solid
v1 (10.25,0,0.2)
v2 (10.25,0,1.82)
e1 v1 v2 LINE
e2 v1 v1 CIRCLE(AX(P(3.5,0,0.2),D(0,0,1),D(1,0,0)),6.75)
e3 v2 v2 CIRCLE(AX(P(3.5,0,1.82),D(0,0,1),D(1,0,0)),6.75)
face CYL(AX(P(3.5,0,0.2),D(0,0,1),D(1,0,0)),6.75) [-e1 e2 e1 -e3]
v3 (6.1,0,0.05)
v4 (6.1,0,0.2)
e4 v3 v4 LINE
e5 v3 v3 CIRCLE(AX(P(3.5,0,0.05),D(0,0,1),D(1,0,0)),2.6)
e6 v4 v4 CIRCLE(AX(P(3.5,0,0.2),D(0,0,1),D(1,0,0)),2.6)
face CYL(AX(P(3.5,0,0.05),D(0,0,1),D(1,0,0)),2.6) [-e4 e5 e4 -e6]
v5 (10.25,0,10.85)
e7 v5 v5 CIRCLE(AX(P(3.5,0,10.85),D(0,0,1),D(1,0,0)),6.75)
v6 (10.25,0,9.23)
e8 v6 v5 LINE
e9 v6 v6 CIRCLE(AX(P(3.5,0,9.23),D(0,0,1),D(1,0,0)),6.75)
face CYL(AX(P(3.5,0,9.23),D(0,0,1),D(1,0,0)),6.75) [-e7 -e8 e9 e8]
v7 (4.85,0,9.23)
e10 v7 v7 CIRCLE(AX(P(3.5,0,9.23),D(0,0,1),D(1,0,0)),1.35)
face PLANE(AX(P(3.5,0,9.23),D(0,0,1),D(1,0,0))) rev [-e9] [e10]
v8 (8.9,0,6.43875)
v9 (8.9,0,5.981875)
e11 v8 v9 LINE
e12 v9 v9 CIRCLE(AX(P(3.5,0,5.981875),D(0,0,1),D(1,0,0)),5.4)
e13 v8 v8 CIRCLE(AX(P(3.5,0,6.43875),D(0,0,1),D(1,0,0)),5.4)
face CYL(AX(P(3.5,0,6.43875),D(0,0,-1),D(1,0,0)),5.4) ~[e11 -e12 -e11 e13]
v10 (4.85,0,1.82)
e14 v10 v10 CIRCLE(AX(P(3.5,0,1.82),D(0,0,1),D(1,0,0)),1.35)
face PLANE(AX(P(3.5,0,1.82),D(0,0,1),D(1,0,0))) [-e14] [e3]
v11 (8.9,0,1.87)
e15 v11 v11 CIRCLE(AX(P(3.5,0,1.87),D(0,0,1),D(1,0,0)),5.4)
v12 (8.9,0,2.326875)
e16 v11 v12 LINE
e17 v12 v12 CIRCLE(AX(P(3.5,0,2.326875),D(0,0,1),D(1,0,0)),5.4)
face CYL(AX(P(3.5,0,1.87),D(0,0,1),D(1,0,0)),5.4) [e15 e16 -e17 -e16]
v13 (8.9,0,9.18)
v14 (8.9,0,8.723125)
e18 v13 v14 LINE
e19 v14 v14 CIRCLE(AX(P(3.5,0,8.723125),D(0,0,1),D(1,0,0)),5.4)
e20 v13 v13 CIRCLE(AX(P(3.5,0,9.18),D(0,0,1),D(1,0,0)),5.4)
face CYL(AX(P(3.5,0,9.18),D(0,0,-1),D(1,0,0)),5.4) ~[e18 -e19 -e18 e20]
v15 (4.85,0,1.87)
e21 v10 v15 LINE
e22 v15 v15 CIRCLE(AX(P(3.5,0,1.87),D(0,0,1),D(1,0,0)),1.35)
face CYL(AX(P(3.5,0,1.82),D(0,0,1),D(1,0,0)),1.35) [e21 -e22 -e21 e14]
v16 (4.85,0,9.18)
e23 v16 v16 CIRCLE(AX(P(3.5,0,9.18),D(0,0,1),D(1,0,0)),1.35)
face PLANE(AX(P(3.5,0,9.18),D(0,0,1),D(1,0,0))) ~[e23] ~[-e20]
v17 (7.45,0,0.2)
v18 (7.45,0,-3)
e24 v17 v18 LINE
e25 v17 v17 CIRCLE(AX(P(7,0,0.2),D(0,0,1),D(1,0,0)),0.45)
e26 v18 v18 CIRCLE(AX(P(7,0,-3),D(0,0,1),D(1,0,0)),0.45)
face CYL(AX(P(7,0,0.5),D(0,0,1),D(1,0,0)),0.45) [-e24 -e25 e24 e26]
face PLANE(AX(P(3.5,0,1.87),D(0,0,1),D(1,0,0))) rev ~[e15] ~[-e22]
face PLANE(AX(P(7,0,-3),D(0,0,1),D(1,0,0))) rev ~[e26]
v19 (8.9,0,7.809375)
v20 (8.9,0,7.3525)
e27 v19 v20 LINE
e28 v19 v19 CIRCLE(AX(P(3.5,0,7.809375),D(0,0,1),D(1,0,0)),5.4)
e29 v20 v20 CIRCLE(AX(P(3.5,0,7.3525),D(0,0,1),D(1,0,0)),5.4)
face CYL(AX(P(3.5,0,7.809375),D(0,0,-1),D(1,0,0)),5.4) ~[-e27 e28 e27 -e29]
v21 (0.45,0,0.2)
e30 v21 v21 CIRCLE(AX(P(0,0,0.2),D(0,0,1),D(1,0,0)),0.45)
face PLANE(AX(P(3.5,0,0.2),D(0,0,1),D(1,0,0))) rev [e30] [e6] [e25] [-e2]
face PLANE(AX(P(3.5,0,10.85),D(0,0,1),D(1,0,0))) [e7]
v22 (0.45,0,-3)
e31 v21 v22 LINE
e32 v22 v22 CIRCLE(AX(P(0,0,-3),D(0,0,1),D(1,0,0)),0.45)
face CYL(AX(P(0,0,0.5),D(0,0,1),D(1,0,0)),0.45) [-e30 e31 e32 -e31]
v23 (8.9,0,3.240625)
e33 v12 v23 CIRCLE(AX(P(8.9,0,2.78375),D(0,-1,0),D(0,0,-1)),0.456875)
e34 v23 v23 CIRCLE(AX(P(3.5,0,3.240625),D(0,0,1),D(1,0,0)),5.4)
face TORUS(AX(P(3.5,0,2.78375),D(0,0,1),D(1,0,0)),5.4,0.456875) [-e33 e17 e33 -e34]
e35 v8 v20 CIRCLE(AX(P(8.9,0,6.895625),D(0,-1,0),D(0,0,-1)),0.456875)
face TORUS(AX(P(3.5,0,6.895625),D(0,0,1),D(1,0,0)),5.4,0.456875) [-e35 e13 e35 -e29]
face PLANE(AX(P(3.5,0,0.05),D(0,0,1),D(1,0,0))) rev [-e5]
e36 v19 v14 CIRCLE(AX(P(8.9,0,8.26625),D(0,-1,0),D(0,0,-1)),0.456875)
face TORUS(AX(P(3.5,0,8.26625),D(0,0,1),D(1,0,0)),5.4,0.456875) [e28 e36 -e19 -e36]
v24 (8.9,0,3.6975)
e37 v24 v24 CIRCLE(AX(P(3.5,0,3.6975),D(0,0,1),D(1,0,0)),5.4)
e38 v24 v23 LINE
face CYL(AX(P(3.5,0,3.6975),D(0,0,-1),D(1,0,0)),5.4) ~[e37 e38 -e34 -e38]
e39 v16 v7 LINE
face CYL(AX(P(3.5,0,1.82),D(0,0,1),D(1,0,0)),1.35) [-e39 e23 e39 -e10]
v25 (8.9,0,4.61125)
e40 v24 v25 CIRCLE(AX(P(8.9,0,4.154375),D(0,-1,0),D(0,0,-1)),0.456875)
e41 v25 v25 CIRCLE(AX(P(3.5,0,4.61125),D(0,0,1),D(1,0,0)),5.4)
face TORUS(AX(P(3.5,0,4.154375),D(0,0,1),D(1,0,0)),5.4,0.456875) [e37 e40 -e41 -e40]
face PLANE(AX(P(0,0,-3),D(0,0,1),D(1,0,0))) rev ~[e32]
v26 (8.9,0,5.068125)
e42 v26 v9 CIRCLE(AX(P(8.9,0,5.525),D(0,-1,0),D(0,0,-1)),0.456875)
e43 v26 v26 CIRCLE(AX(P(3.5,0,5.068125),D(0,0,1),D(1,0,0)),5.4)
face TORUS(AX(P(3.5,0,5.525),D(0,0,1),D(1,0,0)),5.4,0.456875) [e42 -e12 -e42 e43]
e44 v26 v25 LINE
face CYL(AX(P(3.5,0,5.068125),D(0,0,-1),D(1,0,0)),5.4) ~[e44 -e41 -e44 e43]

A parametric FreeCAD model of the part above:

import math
import FreeCAD as App
import Part
import Sketcher
from FreeCAD import Vector

doc = App.newDocument("Part")
body = doc.addObject("PartDesign::Body", "Body")

sketch1 = body.newObject("Sketcher::SketchObject", "Sketch")
sketch1.AttachmentSupport = (doc.getObject("XZ_Plane"), [""])
sketch1.MapMode = "FlatFace"
sketch1.addGeometry(Part.LineSegment(Vector(3.5, 0.05, 0), Vector(6.1, 0.05, 0)), False)
sketch1.addGeometry(Part.LineSegment(Vector(6.1, 0.05, 0), Vector(6.1, 0.2, 0)), False)
sketch1.addGeometry(Part.LineSegment(Vector(6.1, 0.2, 0), Vector(10.25, 0.2, 0)), False)
sketch1.addGeometry(Part.LineSegment(Vector(10.25, 0.2, 0), Vector(10.25, 1.82, 0)), False)
sketch1.addGeometry(Part.LineSegment(Vector(10.25, 1.82, 0), Vector(4.85, 1.82, 0)), False)
sketch1.addGeometry(Part.LineSegment(Vector(4.85, 1.82, 0), Vector(4.85, 9.23, 0)), False)
sketch1.addGeometry(Part.LineSegment(Vector(4.85, 9.23, 0), Vector(10.25, 9.23, 0)), False)
sketch1.addGeometry(Part.LineSegment(Vector(10.25, 9.23, 0), Vector(10.25, 10.85, 0)), False)
sketch1.addGeometry(Part.LineSegment(Vector(10.25, 10.85, 0), Vector(3.5, 10.85, 0)), False)
sketch1.addGeometry(Part.LineSegment(Vector(3.5, 10.85, 0), Vector(3.5, 0.05, 0)), False)
sketch1.addGeometry(Part.LineSegment(Vector(3.5, 0.05, 0), Vector(3.5, 10.85, 0)), True)
sketch1.addConstraint(Sketcher.Constraint("Coincident", 0, 2, 1, 1))
sketch1.addConstraint(Sketcher.Constraint("Coincident", 1, 2, 2, 1))
sketch1.addConstraint(Sketcher.Constraint("Coincident", 2, 2, 3, 1))
sketch1.addConstraint(Sketcher.Constraint("Coincident", 3, 2, 4, 1))
sketch1.addConstraint(Sketcher.Constraint("Coincident", 4, 2, 5, 1))
sketch1.addConstraint(Sketcher.Constraint("Coincident", 5, 2, 6, 1))
sketch1.addConstraint(Sketcher.Constraint("Coincident", 6, 2, 7, 1))
sketch1.addConstraint(Sketcher.Constraint("Coincident", 7, 2, 8, 1))
sketch1.addConstraint(Sketcher.Constraint("Coincident", 8, 2, 9, 1))
sketch1.addConstraint(Sketcher.Constraint("Coincident", 9, 2, 0, 1))
sketch1.addConstraint(Sketcher.Constraint("Horizontal", 0))
sketch1.addConstraint(Sketcher.Constraint("Vertical", 1))
sketch1.addConstraint(Sketcher.Constraint("Horizontal", 2))
sketch1.addConstraint(Sketcher.Constraint("Vertical", 3))
sketch1.addConstraint(Sketcher.Constraint("Horizontal", 4))
sketch1.addConstraint(Sketcher.Constraint("Vertical", 5))
sketch1.addConstraint(Sketcher.Constraint("Horizontal", 6))
sketch1.addConstraint(Sketcher.Constraint("Vertical", 7))
sketch1.addConstraint(Sketcher.Constraint("Horizontal", 8))
sketch1.addConstraint(Sketcher.Constraint("Vertical", 9))
sketch1.addConstraint(Sketcher.Constraint("Vertical", 10))
sketch1.addConstraint(Sketcher.Constraint("Coincident", 10, 1, 9, 2))
sketch1.addConstraint(Sketcher.Constraint("Horizontal", 7, 2, 10, 2))
sketch1.addConstraint(Sketcher.Constraint("Vertical", 3, 2, 6, 2))
sketch1.addConstraint(Sketcher.Constraint("Equal", 3, 7))
sketch1.addConstraint(Sketcher.Constraint("DistanceX", 0, 1, 0, 2, 2.6))
sketch1.addConstraint(Sketcher.Constraint("DistanceX", 4, 2, 4, 1, 5.4))
sketch1.addConstraint(Sketcher.Constraint("DistanceY", 9, 2, 9, 1, 10.8))
sketch1.addConstraint(Sketcher.Constraint("DistanceX", 2, 1, 2, 2, 4.15))
sketch1.addConstraint(Sketcher.Constraint("DistanceY", 1, 1, 1, 2, 0.15))
sketch1.addConstraint(Sketcher.Constraint("DistanceY", 3, 1, 3, 2, 1.62))
sketch1.addConstraint(Sketcher.Constraint("DistanceX", -1, 1, 0, 2, 6.1))
sketch1.addConstraint(Sketcher.Constraint("DistanceY", -1, 1, 1, 2, 0.2))
revolution = body.newObject("PartDesign::Revolution", "Revolution")
revolution.Profile = sketch1
revolution.ReferenceAxis = (sketch1, ["Axis0"])
revolution.Angle = 360
body2 = doc.addObject("PartDesign::Body", "Body001")
body2.AllowCompound = True

sketch2 = body2.newObject("Sketcher::SketchObject", "Sketch001")
sketch2.AttachmentSupport = (doc.getObject("XY_Plane001"), [""])
sketch2.MapMode = "FlatFace"
sketch2.AttachmentOffset = App.Placement(Vector(0, 0, 0.5), App.Rotation())
sketch2.addGeometry(Part.Circle(Vector(0, 0, 0), Vector(0, 0, 1), 0.45), False)
sketch2.addGeometry(Part.Circle(Vector(7, 0, 0), Vector(0, 0, 1), 0.45), False)
sketch2.addConstraint(Sketcher.Constraint("Coincident", 0, 3, -1, 1))
sketch2.addConstraint(Sketcher.Constraint("Equal", 0, 1))
sketch2.addConstraint(Sketcher.Constraint("PointOnObject", 1, 3, -1))
sketch2.addConstraint(Sketcher.Constraint("Diameter", 0, 0.9))
sketch2.addConstraint(Sketcher.Constraint("DistanceX", -1, 1, 1, 3, 7.0))
pad1 = body2.newObject("PartDesign::Pad", "Pad")
pad1.Profile = sketch2
pad1.Length = 3.5
pad1.Reversed = True
body3 = doc.addObject("PartDesign::Body", "Body002")

sketch3 = body3.newObject("Sketcher::SketchObject", "Sketch002")
sketch3.AttachmentSupport = (doc.getObject("XZ_Plane002"), [""])
sketch3.MapMode = "FlatFace"
sketch3.addGeometry(Part.LineSegment(Vector(4.85, 1.87, 0), Vector(8.9, 1.87, 0)), False)
sketch3.addGeometry(Part.LineSegment(Vector(8.9, 1.87, 0), Vector(8.9, 2.33, 0)), False)
sketch3.addGeometry(Part.ArcOfCircle(Part.Circle(Vector(8.9, 2.78, 0), Vector(0, 0, 1), 0.46), math.radians(-90), math.radians(90)), False)
sketch3.addGeometry(Part.LineSegment(Vector(8.9, 3.24, 0), Vector(8.9, 3.7, 0)), False)
sketch3.addGeometry(Part.ArcOfCircle(Part.Circle(Vector(8.9, 4.15, 0), Vector(0, 0, 1), 0.46), math.radians(-90), math.radians(90)), False)
sketch3.addGeometry(Part.LineSegment(Vector(8.9, 4.61, 0), Vector(8.9, 5.07, 0)), False)
sketch3.addGeometry(Part.ArcOfCircle(Part.Circle(Vector(8.9, 5.53, 0), Vector(0, 0, 1), 0.46), math.radians(-90), math.radians(90)), False)
sketch3.addGeometry(Part.LineSegment(Vector(8.9, 5.98, 0), Vector(8.9, 6.44, 0)), False)
sketch3.addGeometry(Part.ArcOfCircle(Part.Circle(Vector(8.9, 6.9, 0), Vector(0, 0, 1), 0.46), math.radians(-90), math.radians(90)), False)
sketch3.addGeometry(Part.LineSegment(Vector(8.9, 7.35, 0), Vector(8.9, 7.81, 0)), False)
sketch3.addGeometry(Part.ArcOfCircle(Part.Circle(Vector(8.9, 8.27, 0), Vector(0, 0, 1), 0.46), math.radians(-90), math.radians(90)), False)
sketch3.addGeometry(Part.LineSegment(Vector(8.9, 8.72, 0), Vector(8.9, 9.18, 0)), False)
sketch3.addGeometry(Part.LineSegment(Vector(8.9, 9.18, 0), Vector(4.85, 9.18, 0)), False)
sketch3.addGeometry(Part.LineSegment(Vector(4.85, 9.18, 0), Vector(4.85, 1.87, 0)), False)
sketch3.addGeometry(Part.LineSegment(Vector(3.5, 1.87, 0), Vector(3.5, 9.18, 0)), True)
sketch3.addConstraint(Sketcher.Constraint("Coincident", 0, 2, 1, 1))
sketch3.addConstraint(Sketcher.Constraint("Coincident", 1, 2, 2, 1))
sketch3.addConstraint(Sketcher.Constraint("Coincident", 2, 2, 3, 1))
sketch3.addConstraint(Sketcher.Constraint("Coincident", 3, 2, 4, 1))
sketch3.addConstraint(Sketcher.Constraint("Coincident", 4, 2, 5, 1))
sketch3.addConstraint(Sketcher.Constraint("Coincident", 5, 2, 6, 1))
sketch3.addConstraint(Sketcher.Constraint("Coincident", 6, 2, 7, 1))
sketch3.addConstraint(Sketcher.Constraint("Coincident", 7, 2, 8, 1))
sketch3.addConstraint(Sketcher.Constraint("Coincident", 8, 2, 9, 1))
sketch3.addConstraint(Sketcher.Constraint("Coincident", 9, 2, 10, 1))
sketch3.addConstraint(Sketcher.Constraint("Coincident", 10, 2, 11, 1))
sketch3.addConstraint(Sketcher.Constraint("Coincident", 11, 2, 12, 1))
sketch3.addConstraint(Sketcher.Constraint("Coincident", 12, 2, 13, 1))
sketch3.addConstraint(Sketcher.Constraint("Coincident", 13, 2, 0, 1))
sketch3.addConstraint(Sketcher.Constraint("Horizontal", 0))
sketch3.addConstraint(Sketcher.Constraint("Vertical", 1))
sketch3.addConstraint(Sketcher.Constraint("Vertical", 3))
sketch3.addConstraint(Sketcher.Constraint("Vertical", 5))
sketch3.addConstraint(Sketcher.Constraint("Vertical", 7))
sketch3.addConstraint(Sketcher.Constraint("Vertical", 9))
sketch3.addConstraint(Sketcher.Constraint("Vertical", 11))
sketch3.addConstraint(Sketcher.Constraint("Horizontal", 12))
sketch3.addConstraint(Sketcher.Constraint("Vertical", 13))
sketch3.addConstraint(Sketcher.Constraint("Vertical", 14))
sketch3.addConstraint(Sketcher.Constraint("Equal", 2, 4))
sketch3.addConstraint(Sketcher.Constraint("Equal", 4, 6))
sketch3.addConstraint(Sketcher.Constraint("Equal", 6, 8))
sketch3.addConstraint(Sketcher.Constraint("Equal", 8, 10))
sketch3.addConstraint(Sketcher.Constraint("Horizontal", 13, 2, 14, 1))
sketch3.addConstraint(Sketcher.Constraint("Horizontal", 12, 2, 14, 2))
sketch3.addConstraint(Sketcher.Constraint("Vertical", 2, 3, 4, 3))
sketch3.addConstraint(Sketcher.Constraint("Vertical", 4, 3, 6, 3))
sketch3.addConstraint(Sketcher.Constraint("Vertical", 6, 3, 8, 3))
sketch3.addConstraint(Sketcher.Constraint("Vertical", 8, 3, 10, 3))
sketch3.addConstraint(Sketcher.Constraint("Vertical", 10, 3, 0, 2))
sketch3.addConstraint(Sketcher.Constraint("Vertical", 1, 2, 2, 2))
sketch3.addConstraint(Sketcher.Constraint("Vertical", 3, 2, 4, 2))
sketch3.addConstraint(Sketcher.Constraint("Vertical", 5, 2, 6, 2))
sketch3.addConstraint(Sketcher.Constraint("Vertical", 7, 2, 8, 2))
sketch3.addConstraint(Sketcher.Constraint("Vertical", 9, 2, 10, 2))
sketch3.addConstraint(Sketcher.Constraint("Equal", 1, 3))
sketch3.addConstraint(Sketcher.Constraint("Equal", 3, 5))
sketch3.addConstraint(Sketcher.Constraint("Equal", 5, 7))
sketch3.addConstraint(Sketcher.Constraint("Equal", 7, 9))
sketch3.addConstraint(Sketcher.Constraint("Equal", 9, 11))
sketch3.addConstraint(Sketcher.Constraint("DistanceX", 0, 1, 0, 2, 4.05))
sketch3.addConstraint(Sketcher.Constraint("DistanceY", 13, 2, 13, 1, 7.31))
sketch3.addConstraint(Sketcher.Constraint("DistanceX", -1, 1, 2, 3, 8.9))
sketch3.addConstraint(Sketcher.Constraint("DistanceX", -1, 1, 14, 1, 3.5))
sketch3.addConstraint(Sketcher.Constraint("DistanceY", -1, 1, 0, 2, 1.87))
sketch3.addConstraint(Sketcher.Constraint("Radius", 2, 0.456875))
revolution2 = body3.newObject("PartDesign::Revolution", "Revolution001")
revolution2.Profile = sketch3
revolution2.ReferenceAxis = (sketch3, ["Axis0"])
revolution2.Angle = 360
doc.recompute()

boolean = body3.newObject("PartDesign::Boolean", "Boolean")
boolean.Type = "Fuse"
boolean.addObjects([body])
doc.recompute()

boolean2 = body3.newObject("PartDesign::Boolean", "Boolean001")
boolean2.Type = "Fuse"
boolean2.addObjects([body2])

doc.recompute()
